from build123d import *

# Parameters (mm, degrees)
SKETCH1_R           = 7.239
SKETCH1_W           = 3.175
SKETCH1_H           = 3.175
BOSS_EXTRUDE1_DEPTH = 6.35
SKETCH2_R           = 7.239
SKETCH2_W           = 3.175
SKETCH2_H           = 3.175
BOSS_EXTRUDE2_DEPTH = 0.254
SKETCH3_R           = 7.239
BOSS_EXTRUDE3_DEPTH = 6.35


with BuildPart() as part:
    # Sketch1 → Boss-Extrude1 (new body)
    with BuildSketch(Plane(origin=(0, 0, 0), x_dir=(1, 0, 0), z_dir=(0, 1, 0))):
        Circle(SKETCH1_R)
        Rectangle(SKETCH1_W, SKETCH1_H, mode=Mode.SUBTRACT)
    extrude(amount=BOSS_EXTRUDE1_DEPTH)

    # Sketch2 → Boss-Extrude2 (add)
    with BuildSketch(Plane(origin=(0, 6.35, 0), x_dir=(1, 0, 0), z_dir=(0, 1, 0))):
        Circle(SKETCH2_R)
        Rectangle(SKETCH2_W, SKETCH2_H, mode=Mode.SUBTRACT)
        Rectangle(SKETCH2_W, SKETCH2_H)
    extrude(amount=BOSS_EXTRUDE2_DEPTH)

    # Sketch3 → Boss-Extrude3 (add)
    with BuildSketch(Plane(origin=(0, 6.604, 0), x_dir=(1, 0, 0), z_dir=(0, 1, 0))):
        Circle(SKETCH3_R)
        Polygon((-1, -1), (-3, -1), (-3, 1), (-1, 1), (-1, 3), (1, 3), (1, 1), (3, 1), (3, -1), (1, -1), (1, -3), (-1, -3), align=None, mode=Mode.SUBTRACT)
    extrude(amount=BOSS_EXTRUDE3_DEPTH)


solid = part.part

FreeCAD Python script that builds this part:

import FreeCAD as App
import Part
import Sketcher
from FreeCAD import Vector
Q = App.Units.Quantity

doc = App.newDocument("Part")
body = doc.addObject("PartDesign::Body", "Body")

# Sketch on XZ plane
sketch1 = doc.addObject("Sketcher::SketchObject", "Sketch")
body.addObject(sketch1)
sketch1.AttachmentSupport = (doc.XZ_Plane, [""])
sketch1.MapMode = "FlatFace"
sketch1.addGeometry([
    Part.Circle(Vector(0, 0, 0), Vector(0, 0, 1), 7.2),  # 0
    Part.LineSegment(Vector(1.6, 1.6, 0), Vector(-1.6, 1.6, 0)),  # 1
    Part.LineSegment(Vector(-1.6, 1.6, 0), Vector(-1.6, -1.6, 0)),  # 2
    Part.LineSegment(Vector(-1.6, -1.6, 0), Vector(1.6, -1.6, 0)),  # 3
    Part.LineSegment(Vector(1.6, -1.6, 0), Vector(1.6, 1.6, 0)),  # 4
], False)
sketch1.addConstraint([
    Sketcher.Constraint("Coincident", 1, 2, 2, 1),
    Sketcher.Constraint("Coincident", 2, 2, 3, 1),
    Sketcher.Constraint("Coincident", 3, 2, 4, 1),
    Sketcher.Constraint("Coincident", 4, 2, 1, 1),
    Sketcher.Constraint("Horizontal", 1),
    Sketcher.Constraint("Vertical", 2),
    Sketcher.Constraint("Horizontal", 3),
    Sketcher.Constraint("Vertical", 4),
    Sketcher.Constraint("Coincident", 0, 3, -1, 1),
    Sketcher.Constraint("Symmetric", 1, 2, 3, 2, -1, 1),
    Sketcher.Constraint("Equal", 3, 2),
    Sketcher.Constraint("Diameter", 0, Q("0.57 in")),
    Sketcher.Constraint("DistanceX", 1, 2, 1, 1, Q("0.125 in")),
])
pad1 = doc.addObject("PartDesign::Pad", "Pad")
body.addObject(pad1)
pad1.Profile = sketch1
pad1.Length = Q("0.25 in")
pad1.Reversed = True

# Sketch on XZ plane
sketch2 = doc.addObject("Sketcher::SketchObject", "Sketch001")
body.addObject(sketch2)
sketch2.AttachmentSupport = (doc.XZ_Plane, [""])
sketch2.MapMode = "FlatFace"
sketch2.AttachmentOffset = App.Placement(Vector(0, 0, -0.25 * 25.4), App.Rotation())
sketch2.addGeometry(Part.Circle(Vector(0, 0, 0), Vector(0, 0, 1), 7), False)
sketch2.addConstraint([
    Sketcher.Constraint("Coincident", 0, 3, -1, 1),
    Sketcher.Constraint("Diameter", 0, Q("0.57 in")),
])
pad2 = doc.addObject("PartDesign::Pad", "Pad001")
body.addObject(pad2)
pad2.Profile = sketch2
pad2.Length = Q("0.01 in")
pad2.Reversed = True

# Sketch on XZ plane
sketch3 = doc.addObject("Sketcher::SketchObject", "Sketch002")
body.addObject(sketch3)
sketch3.AttachmentSupport = (doc.XZ_Plane, [""])
sketch3.MapMode = "FlatFace"
sketch3.AttachmentOffset = App.Placement(Vector(0, 0, -0.26 * 25.4), App.Rotation())
sketch3.addGeometry([
    Part.Circle(Vector(0, 0, 0), Vector(0, 0, 1), 7.2),  # 0
    Part.LineSegment(Vector(-1, 3, 0), Vector(-1, 1, 0)),  # 1
    Part.LineSegment(Vector(-1, 1, 0), Vector(-3, 1, 0)),  # 2
    Part.LineSegment(Vector(-3, 1, 0), Vector(-3, -1, 0)),  # 3
    Part.LineSegment(Vector(-3, -1, 0), Vector(-1, -1, 0)),  # 4
    Part.LineSegment(Vector(-1, -1, 0), Vector(-1, -3, 0)),  # 5
    Part.LineSegment(Vector(-1, -3, 0), Vector(1, -3, 0)),  # 6
    Part.LineSegment(Vector(1, -3, 0), Vector(1, -1, 0)),  # 7
    Part.LineSegment(Vector(1, -1, 0), Vector(3, -1, 0)),  # 8
    Part.LineSegment(Vector(3, -1, 0), Vector(3, 1, 0)),  # 9
    Part.LineSegment(Vector(3, 1, 0), Vector(1, 1, 0)),  # 10
    Part.LineSegment(Vector(1, 1, 0), Vector(1, 3, 0)),  # 11
    Part.LineSegment(Vector(1, 3, 0), Vector(-1, 3, 0)),  # 12
], False)
sketch3.addConstraint([
    Sketcher.Constraint("Coincident", 1, 2, 2, 1),
    Sketcher.Constraint("Coincident", 2, 2, 3, 1),
    Sketcher.Constraint("Coincident", 3, 2, 4, 1),
    Sketcher.Constraint("Coincident", 4, 2, 5, 1),
    Sketcher.Constraint("Coincident", 5, 2, 6, 1),
    Sketcher.Constraint("Coincident", 6, 2, 7, 1),
    Sketcher.Constraint("Coincident", 7, 2, 8, 1),
    Sketcher.Constraint("Coincident", 8, 2, 9, 1),
    Sketcher.Constraint("Coincident", 9, 2, 10, 1),
    Sketcher.Constraint("Coincident", 10, 2, 11, 1),
    Sketcher.Constraint("Coincident", 11, 2, 12, 1),
    Sketcher.Constraint("Coincident", 12, 2, 1, 1),
    Sketcher.Constraint("Vertical", 1),
    Sketcher.Constraint("Horizontal", 2),
    Sketcher.Constraint("Vertical", 3),
    Sketcher.Constraint("Horizontal", 4),
    Sketcher.Constraint("Vertical", 5),
    Sketcher.Constraint("Horizontal", 6),
    Sketcher.Constraint("Vertical", 7),
    Sketcher.Constraint("Horizontal", 8),
    Sketcher.Constraint("Vertical", 9),
    Sketcher.Constraint("Horizontal", 10),
    Sketcher.Constraint("Vertical", 11),
    Sketcher.Constraint("Horizontal", 12),
    Sketcher.Constraint("Coincident", 0, 3, -1, 1),
    Sketcher.Constraint("Symmetric", 1, 2, 7, 2, -1, 1),
    Sketcher.Constraint("Symmetric", 3, 2, 9, 2, -1, 1),
    Sketcher.Constraint("Symmetric", 5, 2, 11, 2, -1, 1),
    Sketcher.Constraint("Symmetric", 4, 2, 7, 2, -2),
    Sketcher.Constraint("Equal", 4, 6),
    Sketcher.Constraint("Equal", 12, 1),
    Sketcher.Constraint("Equal", 1, 3),
    Sketcher.Constraint("Diameter", 0, Q("0.57 in")),
    Sketcher.Constraint("DistanceX", 2, 2, 2, 1, 2.0),
])
pad3 = doc.addObject("PartDesign::Pad", "Pad002")
body.addObject(pad3)
pad3.Profile = sketch3
pad3.Length = Q("0.25 in")
pad3.Reversed = True

doc.recompute()
